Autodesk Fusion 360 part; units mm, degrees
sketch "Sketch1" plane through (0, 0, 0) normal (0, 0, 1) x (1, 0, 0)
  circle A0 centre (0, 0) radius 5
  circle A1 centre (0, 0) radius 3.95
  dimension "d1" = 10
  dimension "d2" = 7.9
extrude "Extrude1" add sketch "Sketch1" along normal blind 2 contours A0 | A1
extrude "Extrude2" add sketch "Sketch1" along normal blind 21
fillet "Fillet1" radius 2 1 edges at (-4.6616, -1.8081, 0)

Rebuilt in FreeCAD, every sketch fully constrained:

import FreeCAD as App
import Part
import Sketcher
from FreeCAD import Vector


def edges_at(feature, points):
    """Names of the edges that pass closest to the given points."""
    edges = feature.Shape.Edges
    near = lambda p: min(range(len(edges)), key=lambda i: edges[i].distToShape(Part.Vertex(*p))[0])
    return sorted({f"Edge{near(p) + 1}" for p in points})

doc = App.newDocument("Part")
params = doc.addObject("Spreadsheet::Sheet", "Params")
for row, (alias, value) in enumerate([
    ("sketch1_diameter", "10 mm"),
    ("pad1_length", "2 mm"),
    ("sketch2_diameter", "10 mm"),
    ("sketch2_diameter2", "7.9 mm"),
    ("pad2_length", "21 mm"),
    ("fillet_radius", "2 mm"),
], start=1):
    params.set(f"A{row}", alias)
    params.set(f"B{row}", "=" + value)
    params.setAlias(f"B{row}", alias)

body = doc.addObject("PartDesign::Body", "Body")

# Sketch on XY plane
sketch1 = body.newObject("Sketcher::SketchObject", "Sketch")
sketch1.AttachmentSupport = (doc.getObject("XY_Plane"), [""])
sketch1.MapMode = "FlatFace"
sketch1.addGeometry(Part.Circle(Vector(0, 0, 0), Vector(0, 0, 1), 5), False)
sketch1.addConstraint([
    Sketcher.Constraint("Coincident", 0, 3, -1, 1),
    Sketcher.Constraint("Diameter", 0, 10.0),
])
sketch1.setExpression("Constraints[1]", "Params.sketch1_diameter")
pad1 = body.newObject("PartDesign::Pad", "Pad")
pad1.Profile = sketch1
pad1.setExpression("Length", "Params.pad1_length")

# Sketch on XY plane
sketch2 = body.newObject("Sketcher::SketchObject", "Sketch001")
sketch2.AttachmentSupport = (doc.getObject("XY_Plane"), [""])
sketch2.MapMode = "FlatFace"
sketch2.addGeometry([
    Part.Circle(Vector(0, 0, 0), Vector(0, 0, 1), 5),
    Part.Circle(Vector(0, 0, 0), Vector(0, 0, 1), 4),
], False)
sketch2.addConstraint([
    Sketcher.Constraint("Coincident", 0, 3, -1, 1),
    Sketcher.Constraint("Coincident", 1, 3, -1, 1),
    Sketcher.Constraint("Diameter", 0, 10.0),
    Sketcher.Constraint("Diameter", 1, 7.9),
])
sketch2.setExpression("Constraints[2]", "Params.sketch2_diameter")
sketch2.setExpression("Constraints[3]", "Params.sketch2_diameter2")
pad2 = body.newObject("PartDesign::Pad", "Pad001")
pad2.Profile = sketch2
pad2.setExpression("Length", "Params.pad2_length")
doc.recompute()

fillet = body.newObject("PartDesign::Fillet", "Fillet")
fillet.Base = (pad2, edges_at(pad2, [(-4.662, -1.808, 0)]))
fillet.setExpression("Radius", "Params.fillet_radius")

doc.recompute()
